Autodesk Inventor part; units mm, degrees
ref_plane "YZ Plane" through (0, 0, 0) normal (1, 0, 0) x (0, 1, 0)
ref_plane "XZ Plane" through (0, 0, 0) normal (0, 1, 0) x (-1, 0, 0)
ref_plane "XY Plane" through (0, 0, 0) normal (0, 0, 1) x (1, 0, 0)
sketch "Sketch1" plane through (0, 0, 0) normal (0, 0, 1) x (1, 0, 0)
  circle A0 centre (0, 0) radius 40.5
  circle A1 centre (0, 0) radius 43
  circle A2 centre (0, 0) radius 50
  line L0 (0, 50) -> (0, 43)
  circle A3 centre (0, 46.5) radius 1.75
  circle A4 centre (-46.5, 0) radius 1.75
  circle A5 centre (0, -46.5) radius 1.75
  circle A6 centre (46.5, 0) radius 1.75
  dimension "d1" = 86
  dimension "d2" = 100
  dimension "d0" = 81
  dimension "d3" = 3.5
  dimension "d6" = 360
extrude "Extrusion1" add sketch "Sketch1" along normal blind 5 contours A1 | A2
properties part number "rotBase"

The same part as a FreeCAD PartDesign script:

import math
import FreeCAD as App
import Part
import Sketcher

doc = App.newDocument("Part")
params = doc.addObject("Spreadsheet::Sheet", "Params")
for row, (alias, value) in enumerate([
    ("sketch1_diameter", "100 mm"),
    ("sketch1_diameter2", "81 mm"),
    ("sketch1_diameter3", "3.5 mm"),
    ("pad1_length", "5 mm"),
], start=1):
    params.set(f"A{row}", alias)
    params.set(f"B{row}", "=" + value)
    params.setAlias(f"B{row}", alias)

body = doc.addObject("PartDesign::Body", "Body")

# Sketch on XY plane
sketch1 = doc.addObject("Sketcher::SketchObject", "Sketch")
body.addObject(sketch1)
sketch1.AttachmentSupport = (doc.XY_Plane, [""])
sketch1.MapMode = "FlatFace"
sketch1.addGeometry([
    Part.Circle(App.Vector(0, 0, 0), App.Vector(0, 0, 1), 50),  # 0
    Part.Circle(App.Vector(0, 0, 0), App.Vector(0, 0, 1), 40.5),  # 1
    Part.Circle(App.Vector(0, -46.5, 0), App.Vector(0, 0, 1), 1.8),  # 2
    Part.Circle(App.Vector(-46.5, 0, 0), App.Vector(0, 0, 1), 1.8),  # 3
    Part.Circle(App.Vector(46.5, 0, 0), App.Vector(0, 0, 1), 1.8),  # 4
    Part.ArcOfCircle(Part.Circle(App.Vector(0, 46.5, 0), App.Vector(0, 0, 1), 1.8), math.radians(90), math.radians(270)),  # 5
    Part.ArcOfCircle(Part.Circle(App.Vector(0, 46.5, 0), App.Vector(0, 0, 1), 1.8), math.radians(-90), math.radians(90)),  # 6
], False)
sketch1.addConstraint([
    Sketcher.Constraint("Tangent", 5, 1, 6, 2),
    Sketcher.Constraint("Coincident", 6, 1, 5, 2),
    Sketcher.Constraint("Coincident", 0, 3, -1, 1),
    Sketcher.Constraint("Coincident", 1, 3, -1, 1),
    Sketcher.Constraint("Equal", 2, 3),
    Sketcher.Constraint("Equal", 3, 4),
    Sketcher.Constraint("Equal", 4, 5),
    Sketcher.Constraint("Symmetric", 3, 3, 4, 3, -1, 1),
    Sketcher.Constraint("Symmetric", 2, 3, 5, 3, -1, 1),
    Sketcher.Constraint("PointOnObject", 2, 3, -2),
    Sketcher.Constraint("PointOnObject", 3, 3, -1),
    Sketcher.Constraint("PointOnObject", 5, 1, -2),
    Sketcher.Constraint("PointOnObject", 6, 1, -2),
    Sketcher.Constraint("Diameter", 0, 100.0),
    Sketcher.Constraint("Diameter", 1, 81.0),
    Sketcher.Constraint("Diameter", 2, 3.5),
    Sketcher.Constraint("DistanceX", 3, 3, 4, 3, 93.0),
    Sketcher.Constraint("DistanceY", 2, 3, 5, 3, 93.0),
])
sketch1.setExpression("Constraints[13]", "Params.sketch1_diameter")
sketch1.setExpression("Constraints[14]", "Params.sketch1_diameter2")
sketch1.setExpression("Constraints[15]", "Params.sketch1_diameter3")
pad1 = doc.addObject("PartDesign::Pad", "Pad")
body.addObject(pad1)
pad1.Profile = sketch1
pad1.setExpression("Length", "Params.pad1_length")

doc.recompute()
